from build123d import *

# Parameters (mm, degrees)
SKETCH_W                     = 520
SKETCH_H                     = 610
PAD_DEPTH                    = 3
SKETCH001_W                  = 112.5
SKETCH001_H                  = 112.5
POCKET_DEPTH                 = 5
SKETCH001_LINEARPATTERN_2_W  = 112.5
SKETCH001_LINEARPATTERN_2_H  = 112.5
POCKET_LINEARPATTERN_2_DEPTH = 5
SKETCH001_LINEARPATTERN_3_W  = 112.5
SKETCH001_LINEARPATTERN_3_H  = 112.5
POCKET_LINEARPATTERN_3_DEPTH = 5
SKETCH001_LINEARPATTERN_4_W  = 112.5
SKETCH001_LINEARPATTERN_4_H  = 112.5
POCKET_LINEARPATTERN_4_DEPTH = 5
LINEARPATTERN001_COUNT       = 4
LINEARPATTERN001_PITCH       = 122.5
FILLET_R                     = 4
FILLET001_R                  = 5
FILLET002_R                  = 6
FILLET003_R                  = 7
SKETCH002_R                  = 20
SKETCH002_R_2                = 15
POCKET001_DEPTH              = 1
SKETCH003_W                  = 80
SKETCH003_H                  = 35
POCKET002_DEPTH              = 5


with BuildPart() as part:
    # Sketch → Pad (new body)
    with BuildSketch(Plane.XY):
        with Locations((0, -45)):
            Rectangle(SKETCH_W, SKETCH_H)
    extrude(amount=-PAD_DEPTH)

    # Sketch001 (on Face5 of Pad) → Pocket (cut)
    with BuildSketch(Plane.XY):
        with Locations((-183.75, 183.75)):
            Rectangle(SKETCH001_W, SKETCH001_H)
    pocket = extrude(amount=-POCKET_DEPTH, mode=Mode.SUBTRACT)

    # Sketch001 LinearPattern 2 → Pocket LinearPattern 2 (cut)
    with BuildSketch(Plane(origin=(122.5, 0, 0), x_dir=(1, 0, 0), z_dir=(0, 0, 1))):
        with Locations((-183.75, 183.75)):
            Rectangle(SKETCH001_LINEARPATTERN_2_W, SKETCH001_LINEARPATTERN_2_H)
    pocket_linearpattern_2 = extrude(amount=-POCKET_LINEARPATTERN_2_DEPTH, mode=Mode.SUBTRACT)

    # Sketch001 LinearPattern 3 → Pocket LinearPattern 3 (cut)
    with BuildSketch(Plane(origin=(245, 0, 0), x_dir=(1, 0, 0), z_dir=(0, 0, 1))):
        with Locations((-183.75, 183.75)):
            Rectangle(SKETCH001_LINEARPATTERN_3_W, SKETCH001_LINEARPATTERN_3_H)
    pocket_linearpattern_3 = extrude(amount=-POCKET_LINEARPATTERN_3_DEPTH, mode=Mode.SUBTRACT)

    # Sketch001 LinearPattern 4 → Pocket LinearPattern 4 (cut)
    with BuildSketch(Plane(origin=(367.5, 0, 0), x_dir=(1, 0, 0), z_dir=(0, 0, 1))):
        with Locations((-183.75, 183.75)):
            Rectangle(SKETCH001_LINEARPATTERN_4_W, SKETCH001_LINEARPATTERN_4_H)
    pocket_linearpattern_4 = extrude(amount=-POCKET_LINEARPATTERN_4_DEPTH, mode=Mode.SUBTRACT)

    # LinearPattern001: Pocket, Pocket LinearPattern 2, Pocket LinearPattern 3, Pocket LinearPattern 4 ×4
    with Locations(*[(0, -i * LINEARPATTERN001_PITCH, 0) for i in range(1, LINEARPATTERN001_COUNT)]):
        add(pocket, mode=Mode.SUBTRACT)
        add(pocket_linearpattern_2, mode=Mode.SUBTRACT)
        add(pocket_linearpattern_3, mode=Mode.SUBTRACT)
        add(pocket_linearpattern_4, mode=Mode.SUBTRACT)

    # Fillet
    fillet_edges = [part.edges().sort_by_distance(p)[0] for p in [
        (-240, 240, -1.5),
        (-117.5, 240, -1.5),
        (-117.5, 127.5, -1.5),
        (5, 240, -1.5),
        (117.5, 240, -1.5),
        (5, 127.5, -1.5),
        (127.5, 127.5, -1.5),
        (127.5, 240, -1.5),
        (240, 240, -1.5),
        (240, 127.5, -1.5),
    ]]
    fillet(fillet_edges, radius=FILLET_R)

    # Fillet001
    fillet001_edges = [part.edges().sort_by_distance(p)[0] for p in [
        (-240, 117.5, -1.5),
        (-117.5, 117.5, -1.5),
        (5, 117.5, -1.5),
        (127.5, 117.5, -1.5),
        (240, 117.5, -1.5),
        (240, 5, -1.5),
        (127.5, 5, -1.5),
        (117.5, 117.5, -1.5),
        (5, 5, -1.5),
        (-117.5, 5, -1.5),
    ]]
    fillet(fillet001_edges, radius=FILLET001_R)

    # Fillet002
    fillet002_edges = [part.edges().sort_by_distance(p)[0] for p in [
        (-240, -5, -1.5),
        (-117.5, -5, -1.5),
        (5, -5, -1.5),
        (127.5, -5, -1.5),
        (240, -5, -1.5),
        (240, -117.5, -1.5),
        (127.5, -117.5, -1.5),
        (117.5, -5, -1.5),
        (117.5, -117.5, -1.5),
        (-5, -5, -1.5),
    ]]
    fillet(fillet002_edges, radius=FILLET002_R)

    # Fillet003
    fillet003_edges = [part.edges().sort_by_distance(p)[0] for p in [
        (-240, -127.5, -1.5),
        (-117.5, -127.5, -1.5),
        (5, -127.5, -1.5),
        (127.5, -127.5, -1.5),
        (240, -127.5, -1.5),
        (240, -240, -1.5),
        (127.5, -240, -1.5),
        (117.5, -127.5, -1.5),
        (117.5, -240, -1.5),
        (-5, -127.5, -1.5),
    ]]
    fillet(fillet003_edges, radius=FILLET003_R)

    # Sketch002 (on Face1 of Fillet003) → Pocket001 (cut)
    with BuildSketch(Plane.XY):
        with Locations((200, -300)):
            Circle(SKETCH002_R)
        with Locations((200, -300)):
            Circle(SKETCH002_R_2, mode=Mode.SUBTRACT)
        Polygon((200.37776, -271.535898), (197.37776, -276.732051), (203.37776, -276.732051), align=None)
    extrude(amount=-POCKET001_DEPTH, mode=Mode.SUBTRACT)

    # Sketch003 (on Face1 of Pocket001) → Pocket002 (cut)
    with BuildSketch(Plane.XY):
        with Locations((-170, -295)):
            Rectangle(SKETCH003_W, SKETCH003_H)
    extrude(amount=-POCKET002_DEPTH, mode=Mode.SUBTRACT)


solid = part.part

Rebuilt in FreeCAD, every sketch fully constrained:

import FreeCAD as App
import Part
import Sketcher
from FreeCAD import Vector
Q = App.Units.Quantity


def edges_at(feature, points):
    """Names of the edges that pass closest to the given points."""
    edges = feature.Shape.Edges
    near = lambda p: min(range(len(edges)), key=lambda i: edges[i].distToShape(Part.Vertex(*p))[0])
    return sorted({f"Edge{near(p) + 1}" for p in points})


def add_polygon(sketch, points):
    """Adds a closed chain of lines whose ends are joined by coincident constraints."""
    first, n = sketch.GeometryCount, len(points)
    for a, b in zip(points, points[1:] + points[:1]):
        sketch.addGeometry(Part.LineSegment(App.Vector(*a, 0), App.Vector(*b, 0)), False)
    for i in range(n):
        sketch.addConstraint(Sketcher.Constraint("Coincident", first + i, 2, first + (i + 1) % n, 1))

doc = App.newDocument("Part")
body = doc.addObject("PartDesign::Body", "Body")

# Sketch on XY plane
sketch1 = doc.addObject("Sketcher::SketchObject", "Sketch")
body.addObject(sketch1)
sketch1.AttachmentSupport = (doc.XY_Plane, [""])
sketch1.MapMode = "FlatFace"
add_polygon(sketch1, [(-260, 260), (-260, -350), (260, -350), (260, 260)])  # lines 0-3
sketch1.addConstraint(Sketcher.Constraint("Vertical", 0))
sketch1.addConstraint(Sketcher.Constraint("Horizontal", 1))
sketch1.addConstraint(Sketcher.Constraint("Vertical", 2))
sketch1.addConstraint(Sketcher.Constraint("Horizontal", 3))
sketch1.addConstraint(Sketcher.Constraint("DistanceX", 1, 1, 1, 2, Q("520 mm")))
sketch1.addConstraint(Sketcher.Constraint("DistanceY", 0, 2, 0, 1, Q("610 mm")))
sketch1.addConstraint(Sketcher.Constraint("DistanceX", 0, 2, -1, 1, Q("260 mm")))
sketch1.addConstraint(Sketcher.Constraint("DistanceY", 0, 2, -1, 1, Q("350 mm")))
pad1 = doc.addObject("PartDesign::Pad", "Pad")
body.addObject(pad1)
pad1.Profile = sketch1
pad1.Length = 3
pad1.Reversed = True

# Sketch on XY plane
sketch2 = doc.addObject("Sketcher::SketchObject", "Sketch001")
body.addObject(sketch2)
sketch2.AttachmentSupport = (doc.XY_Plane, [""])
sketch2.MapMode = "FlatFace"
add_polygon(sketch2, [(-240, 240), (-240, 128), (-128, 128), (-128, 240)])  # lines 0-3
sketch2.addConstraint(Sketcher.Constraint("Vertical", 0))
sketch2.addConstraint(Sketcher.Constraint("Horizontal", 1))
sketch2.addConstraint(Sketcher.Constraint("Vertical", 2))
sketch2.addConstraint(Sketcher.Constraint("Horizontal", 3))
sketch2.addConstraint(Sketcher.Constraint("Equal", 3, 0))
sketch2.addConstraint(Sketcher.Constraint("DistanceX", 1, 1, 1, 2, Q("112.5 mm")))
sketch2.addConstraint(Sketcher.Constraint("DistanceX", 0, 2, -1, 1, Q("240 mm")))
sketch2.addConstraint(Sketcher.Constraint("DistanceY", -1, 1, 2, 2, Q("240 mm")))
pocket1 = doc.addObject("PartDesign::Pocket", "Pocket")
body.addObject(pocket1)
pocket1.Profile = sketch2
pocket1.Length = 5

# Sketch on XY plane
sketch3 = doc.addObject("Sketcher::SketchObject", "Sketch002")
body.addObject(sketch3)
sketch3.AttachmentSupport = (doc.XY_Plane, [""])
sketch3.MapMode = "FlatFace"
add_polygon(sketch3, [(-118, 240), (-118, 128), (-5, 128), (-5, 240)])  # lines 0-3
sketch3.addConstraint(Sketcher.Constraint("Vertical", 0))
sketch3.addConstraint(Sketcher.Constraint("Horizontal", 1))
sketch3.addConstraint(Sketcher.Constraint("Vertical", 2))
sketch3.addConstraint(Sketcher.Constraint("Horizontal", 3))
sketch3.addConstraint(Sketcher.Constraint("Equal", 3, 0))
sketch3.addConstraint(Sketcher.Constraint("DistanceX", 1, 1, 1, 2, Q("112.5 mm")))
sketch3.addConstraint(Sketcher.Constraint("DistanceX", 1, 2, -1, 1, Q("5 mm")))
sketch3.addConstraint(Sketcher.Constraint("DistanceY", -1, 1, 2, 2, Q("240 mm")))
pocket2 = doc.addObject("PartDesign::Pocket", "Pocket001")
body.addObject(pocket2)
pocket2.Profile = sketch3
pocket2.Length = 5

# Sketch on XY plane
sketch4 = doc.addObject("Sketcher::SketchObject", "Sketch003")
body.addObject(sketch4)
sketch4.AttachmentSupport = (doc.XY_Plane, [""])
sketch4.MapMode = "FlatFace"
add_polygon(sketch4, [(5, 240), (5, 128), (118, 128), (118, 240)])  # lines 0-3
sketch4.addConstraint(Sketcher.Constraint("Vertical", 0))
sketch4.addConstraint(Sketcher.Constraint("Horizontal", 1))
sketch4.addConstraint(Sketcher.Constraint("Vertical", 2))
sketch4.addConstraint(Sketcher.Constraint("Horizontal", 3))
sketch4.addConstraint(Sketcher.Constraint("Equal", 3, 0))
sketch4.addConstraint(Sketcher.Constraint("DistanceX", 1, 1, 1, 2, Q("112.5 mm")))
sketch4.addConstraint(Sketcher.Constraint("DistanceX", -1, 1, 0, 2, Q("5 mm")))
sketch4.addConstraint(Sketcher.Constraint("DistanceY", -1, 1, 2, 2, Q("240 mm")))
pocket3 = doc.addObject("PartDesign::Pocket", "Pocket002")
body.addObject(pocket3)
pocket3.Profile = sketch4
pocket3.Length = 5

# Sketch on XY plane
sketch5 = doc.addObject("Sketcher::SketchObject", "Sketch004")
body.addObject(sketch5)
sketch5.AttachmentSupport = (doc.XY_Plane, [""])
sketch5.MapMode = "FlatFace"
add_polygon(sketch5, [(128, 240), (128, 128), (240, 128), (240, 240)])  # lines 0-3
sketch5.addConstraint(Sketcher.Constraint("Vertical", 0))
sketch5.addConstraint(Sketcher.Constraint("Horizontal", 1))
sketch5.addConstraint(Sketcher.Constraint("Vertical", 2))
sketch5.addConstraint(Sketcher.Constraint("Horizontal", 3))
sketch5.addConstraint(Sketcher.Constraint("Equal", 3, 0))
sketch5.addConstraint(Sketcher.Constraint("DistanceX", 1, 1, 1, 2, Q("112.5 mm")))
sketch5.addConstraint(Sketcher.Constraint("DistanceX", -1, 1, 1, 2, Q("240 mm")))
sketch5.addConstraint(Sketcher.Constraint("DistanceY", -1, 1, 2, 2, Q("240 mm")))
pocket4 = doc.addObject("PartDesign::Pocket", "Pocket003")
body.addObject(pocket4)
pocket4.Profile = sketch5
pocket4.Length = 5
doc.recompute()

linearpattern = doc.addObject("PartDesign::LinearPattern", "LinearPattern")
body.addObject(linearpattern)
linearpattern.Originals = [pocket1, pocket2, pocket3, pocket4]
linearpattern.Direction = (doc.Y_Axis, [""])
linearpattern.Mode = "offset"
linearpattern.Offset = 122.5
linearpattern.Occurrences = 4
linearpattern.Reversed = True
body.Tip = linearpattern
doc.recompute()

fillet = doc.addObject("PartDesign::Fillet", "Fillet")
body.addObject(fillet)
fillet.Base = (linearpattern, edges_at(linearpattern, [
    (-240, 240, -1.5),
    (-117.5, 240, -1.5),
    (-117.5, 127.5, -1.5),
    (5, 240, -1.5),
    (117.5, 240, -1.5),
    (5, 127.5, -1.5),
    (127.5, 127.5, -1.5),
    (127.5, 240, -1.5),
    (240, 240, -1.5),
    (240, 127.5, -1.5),
]))
fillet.Radius = 4
doc.recompute()

fillet2 = doc.addObject("PartDesign::Fillet", "Fillet001")
body.addObject(fillet2)
fillet2.Base = (fillet, edges_at(fillet, [
    (-240, 117.5, -1.5),
    (-117.5, 117.5, -1.5),
    (5, 117.5, -1.5),
    (127.5, 117.5, -1.5),
    (240, 117.5, -1.5),
    (240, 5, -1.5),
    (127.5, 5, -1.5),
    (117.5, 117.5, -1.5),
    (5, 5, -1.5),
    (-117.5, 5, -1.5),
]))
fillet2.Radius = 5
doc.recompute()

fillet3 = doc.addObject("PartDesign::Fillet", "Fillet002")
body.addObject(fillet3)
fillet3.Base = (fillet2, edges_at(fillet2, [
    (-240, -5, -1.5),
    (-117.5, -5, -1.5),
    (5, -5, -1.5),
    (127.5, -5, -1.5),
    (240, -5, -1.5),
    (240, -117.5, -1.5),
    (127.5, -117.5, -1.5),
    (117.5, -5, -1.5),
    (117.5, -117.5, -1.5),
    (-5, -5, -1.5),
]))
fillet3.Radius = 6
doc.recompute()

fillet4 = doc.addObject("PartDesign::Fillet", "Fillet003")
body.addObject(fillet4)
fillet4.Base = (fillet3, edges_at(fillet3, [
    (-240, -127.5, -1.5),
    (-117.5, -127.5, -1.5),
    (5, -127.5, -1.5),
    (127.5, -127.5, -1.5),
    (240, -127.5, -1.5),
    (240, -240, -1.5),
    (127.5, -240, -1.5),
    (117.5, -127.5, -1.5),
    (117.5, -240, -1.5),
    (-5, -127.5, -1.5),
]))
fillet4.Radius = 7

# Sketch on XY plane
sketch6 = doc.addObject("Sketcher::SketchObject", "Sketch005")
body.addObject(sketch6)
sketch6.AttachmentSupport = (doc.XY_Plane, [""])
sketch6.MapMode = "FlatFace"
sketch6.addGeometry(Part.Circle(Vector(200, -300, 0), Vector(0, 0, 1), 20), False)  # 0
sketch6.addGeometry(Part.Circle(Vector(200, -300, 0), Vector(0, 0, 1), 15), False)  # 1
add_polygon(sketch6, [(200, -272), (197, -277), (203, -277)])  # lines 2-4
sketch6.addConstraint(Sketcher.Constraint("Horizontal", 3))
sketch6.addConstraint(Sketcher.Constraint("Coincident", 1, 3, 0, 3))
sketch6.addConstraint(Sketcher.Constraint("Equal", 2, 4))
sketch6.addConstraint(Sketcher.Constraint("Diameter", 0, Q("40 mm")))
sketch6.addConstraint(Sketcher.Constraint("Diameter", 1, Q("30 mm")))
sketch6.addConstraint(Sketcher.Constraint("DistanceX", 3, 1, 3, 2, Q("6 mm")))
sketch6.addConstraint(Sketcher.Constraint("Angle", 2, Q("-119.999997 deg")))
sketch6.addConstraint(Sketcher.Constraint("DistanceX", -1, 1, 0, 3, Q("200 mm")))
sketch6.addConstraint(Sketcher.Constraint("DistanceY", 0, 3, -1, 1, Q("300 mm")))
sketch6.addConstraint(Sketcher.Constraint("DistanceX", -1, 1, 2, 2, Q("197.37776 mm")))
sketch6.addConstraint(Sketcher.Constraint("DistanceY", 2, 2, -1, 1, Q("276.732051 mm")))
pocket5 = doc.addObject("PartDesign::Pocket", "Pocket004")
body.addObject(pocket5)
pocket5.Profile = sketch6
pocket5.Length = 1

# Sketch on XY plane
sketch7 = doc.addObject("Sketcher::SketchObject", "Sketch006")
body.addObject(sketch7)
sketch7.AttachmentSupport = (doc.XY_Plane, [""])
sketch7.MapMode = "FlatFace"
add_polygon(sketch7, [(-210, -278), (-210, -312), (-130, -312), (-130, -278)])  # lines 0-3
sketch7.addConstraint(Sketcher.Constraint("Vertical", 0))
sketch7.addConstraint(Sketcher.Constraint("Horizontal", 1))
sketch7.addConstraint(Sketcher.Constraint("Vertical", 2))
sketch7.addConstraint(Sketcher.Constraint("Horizontal", 3))
sketch7.addConstraint(Sketcher.Constraint("DistanceX", 1, 1, 1, 2, Q("80 mm")))
sketch7.addConstraint(Sketcher.Constraint("DistanceY", 0, 2, 0, 1, Q("35 mm")))
sketch7.addConstraint(Sketcher.Constraint("DistanceX", 0, 2, -1, 1, Q("210 mm")))
sketch7.addConstraint(Sketcher.Constraint("DistanceY", 0, 2, -1, 1, Q("312.5 mm")))
pocket6 = doc.addObject("PartDesign::Pocket", "Pocket005")
body.addObject(pocket6)
pocket6.Profile = sketch7
pocket6.Length = 5

doc.recompute()
